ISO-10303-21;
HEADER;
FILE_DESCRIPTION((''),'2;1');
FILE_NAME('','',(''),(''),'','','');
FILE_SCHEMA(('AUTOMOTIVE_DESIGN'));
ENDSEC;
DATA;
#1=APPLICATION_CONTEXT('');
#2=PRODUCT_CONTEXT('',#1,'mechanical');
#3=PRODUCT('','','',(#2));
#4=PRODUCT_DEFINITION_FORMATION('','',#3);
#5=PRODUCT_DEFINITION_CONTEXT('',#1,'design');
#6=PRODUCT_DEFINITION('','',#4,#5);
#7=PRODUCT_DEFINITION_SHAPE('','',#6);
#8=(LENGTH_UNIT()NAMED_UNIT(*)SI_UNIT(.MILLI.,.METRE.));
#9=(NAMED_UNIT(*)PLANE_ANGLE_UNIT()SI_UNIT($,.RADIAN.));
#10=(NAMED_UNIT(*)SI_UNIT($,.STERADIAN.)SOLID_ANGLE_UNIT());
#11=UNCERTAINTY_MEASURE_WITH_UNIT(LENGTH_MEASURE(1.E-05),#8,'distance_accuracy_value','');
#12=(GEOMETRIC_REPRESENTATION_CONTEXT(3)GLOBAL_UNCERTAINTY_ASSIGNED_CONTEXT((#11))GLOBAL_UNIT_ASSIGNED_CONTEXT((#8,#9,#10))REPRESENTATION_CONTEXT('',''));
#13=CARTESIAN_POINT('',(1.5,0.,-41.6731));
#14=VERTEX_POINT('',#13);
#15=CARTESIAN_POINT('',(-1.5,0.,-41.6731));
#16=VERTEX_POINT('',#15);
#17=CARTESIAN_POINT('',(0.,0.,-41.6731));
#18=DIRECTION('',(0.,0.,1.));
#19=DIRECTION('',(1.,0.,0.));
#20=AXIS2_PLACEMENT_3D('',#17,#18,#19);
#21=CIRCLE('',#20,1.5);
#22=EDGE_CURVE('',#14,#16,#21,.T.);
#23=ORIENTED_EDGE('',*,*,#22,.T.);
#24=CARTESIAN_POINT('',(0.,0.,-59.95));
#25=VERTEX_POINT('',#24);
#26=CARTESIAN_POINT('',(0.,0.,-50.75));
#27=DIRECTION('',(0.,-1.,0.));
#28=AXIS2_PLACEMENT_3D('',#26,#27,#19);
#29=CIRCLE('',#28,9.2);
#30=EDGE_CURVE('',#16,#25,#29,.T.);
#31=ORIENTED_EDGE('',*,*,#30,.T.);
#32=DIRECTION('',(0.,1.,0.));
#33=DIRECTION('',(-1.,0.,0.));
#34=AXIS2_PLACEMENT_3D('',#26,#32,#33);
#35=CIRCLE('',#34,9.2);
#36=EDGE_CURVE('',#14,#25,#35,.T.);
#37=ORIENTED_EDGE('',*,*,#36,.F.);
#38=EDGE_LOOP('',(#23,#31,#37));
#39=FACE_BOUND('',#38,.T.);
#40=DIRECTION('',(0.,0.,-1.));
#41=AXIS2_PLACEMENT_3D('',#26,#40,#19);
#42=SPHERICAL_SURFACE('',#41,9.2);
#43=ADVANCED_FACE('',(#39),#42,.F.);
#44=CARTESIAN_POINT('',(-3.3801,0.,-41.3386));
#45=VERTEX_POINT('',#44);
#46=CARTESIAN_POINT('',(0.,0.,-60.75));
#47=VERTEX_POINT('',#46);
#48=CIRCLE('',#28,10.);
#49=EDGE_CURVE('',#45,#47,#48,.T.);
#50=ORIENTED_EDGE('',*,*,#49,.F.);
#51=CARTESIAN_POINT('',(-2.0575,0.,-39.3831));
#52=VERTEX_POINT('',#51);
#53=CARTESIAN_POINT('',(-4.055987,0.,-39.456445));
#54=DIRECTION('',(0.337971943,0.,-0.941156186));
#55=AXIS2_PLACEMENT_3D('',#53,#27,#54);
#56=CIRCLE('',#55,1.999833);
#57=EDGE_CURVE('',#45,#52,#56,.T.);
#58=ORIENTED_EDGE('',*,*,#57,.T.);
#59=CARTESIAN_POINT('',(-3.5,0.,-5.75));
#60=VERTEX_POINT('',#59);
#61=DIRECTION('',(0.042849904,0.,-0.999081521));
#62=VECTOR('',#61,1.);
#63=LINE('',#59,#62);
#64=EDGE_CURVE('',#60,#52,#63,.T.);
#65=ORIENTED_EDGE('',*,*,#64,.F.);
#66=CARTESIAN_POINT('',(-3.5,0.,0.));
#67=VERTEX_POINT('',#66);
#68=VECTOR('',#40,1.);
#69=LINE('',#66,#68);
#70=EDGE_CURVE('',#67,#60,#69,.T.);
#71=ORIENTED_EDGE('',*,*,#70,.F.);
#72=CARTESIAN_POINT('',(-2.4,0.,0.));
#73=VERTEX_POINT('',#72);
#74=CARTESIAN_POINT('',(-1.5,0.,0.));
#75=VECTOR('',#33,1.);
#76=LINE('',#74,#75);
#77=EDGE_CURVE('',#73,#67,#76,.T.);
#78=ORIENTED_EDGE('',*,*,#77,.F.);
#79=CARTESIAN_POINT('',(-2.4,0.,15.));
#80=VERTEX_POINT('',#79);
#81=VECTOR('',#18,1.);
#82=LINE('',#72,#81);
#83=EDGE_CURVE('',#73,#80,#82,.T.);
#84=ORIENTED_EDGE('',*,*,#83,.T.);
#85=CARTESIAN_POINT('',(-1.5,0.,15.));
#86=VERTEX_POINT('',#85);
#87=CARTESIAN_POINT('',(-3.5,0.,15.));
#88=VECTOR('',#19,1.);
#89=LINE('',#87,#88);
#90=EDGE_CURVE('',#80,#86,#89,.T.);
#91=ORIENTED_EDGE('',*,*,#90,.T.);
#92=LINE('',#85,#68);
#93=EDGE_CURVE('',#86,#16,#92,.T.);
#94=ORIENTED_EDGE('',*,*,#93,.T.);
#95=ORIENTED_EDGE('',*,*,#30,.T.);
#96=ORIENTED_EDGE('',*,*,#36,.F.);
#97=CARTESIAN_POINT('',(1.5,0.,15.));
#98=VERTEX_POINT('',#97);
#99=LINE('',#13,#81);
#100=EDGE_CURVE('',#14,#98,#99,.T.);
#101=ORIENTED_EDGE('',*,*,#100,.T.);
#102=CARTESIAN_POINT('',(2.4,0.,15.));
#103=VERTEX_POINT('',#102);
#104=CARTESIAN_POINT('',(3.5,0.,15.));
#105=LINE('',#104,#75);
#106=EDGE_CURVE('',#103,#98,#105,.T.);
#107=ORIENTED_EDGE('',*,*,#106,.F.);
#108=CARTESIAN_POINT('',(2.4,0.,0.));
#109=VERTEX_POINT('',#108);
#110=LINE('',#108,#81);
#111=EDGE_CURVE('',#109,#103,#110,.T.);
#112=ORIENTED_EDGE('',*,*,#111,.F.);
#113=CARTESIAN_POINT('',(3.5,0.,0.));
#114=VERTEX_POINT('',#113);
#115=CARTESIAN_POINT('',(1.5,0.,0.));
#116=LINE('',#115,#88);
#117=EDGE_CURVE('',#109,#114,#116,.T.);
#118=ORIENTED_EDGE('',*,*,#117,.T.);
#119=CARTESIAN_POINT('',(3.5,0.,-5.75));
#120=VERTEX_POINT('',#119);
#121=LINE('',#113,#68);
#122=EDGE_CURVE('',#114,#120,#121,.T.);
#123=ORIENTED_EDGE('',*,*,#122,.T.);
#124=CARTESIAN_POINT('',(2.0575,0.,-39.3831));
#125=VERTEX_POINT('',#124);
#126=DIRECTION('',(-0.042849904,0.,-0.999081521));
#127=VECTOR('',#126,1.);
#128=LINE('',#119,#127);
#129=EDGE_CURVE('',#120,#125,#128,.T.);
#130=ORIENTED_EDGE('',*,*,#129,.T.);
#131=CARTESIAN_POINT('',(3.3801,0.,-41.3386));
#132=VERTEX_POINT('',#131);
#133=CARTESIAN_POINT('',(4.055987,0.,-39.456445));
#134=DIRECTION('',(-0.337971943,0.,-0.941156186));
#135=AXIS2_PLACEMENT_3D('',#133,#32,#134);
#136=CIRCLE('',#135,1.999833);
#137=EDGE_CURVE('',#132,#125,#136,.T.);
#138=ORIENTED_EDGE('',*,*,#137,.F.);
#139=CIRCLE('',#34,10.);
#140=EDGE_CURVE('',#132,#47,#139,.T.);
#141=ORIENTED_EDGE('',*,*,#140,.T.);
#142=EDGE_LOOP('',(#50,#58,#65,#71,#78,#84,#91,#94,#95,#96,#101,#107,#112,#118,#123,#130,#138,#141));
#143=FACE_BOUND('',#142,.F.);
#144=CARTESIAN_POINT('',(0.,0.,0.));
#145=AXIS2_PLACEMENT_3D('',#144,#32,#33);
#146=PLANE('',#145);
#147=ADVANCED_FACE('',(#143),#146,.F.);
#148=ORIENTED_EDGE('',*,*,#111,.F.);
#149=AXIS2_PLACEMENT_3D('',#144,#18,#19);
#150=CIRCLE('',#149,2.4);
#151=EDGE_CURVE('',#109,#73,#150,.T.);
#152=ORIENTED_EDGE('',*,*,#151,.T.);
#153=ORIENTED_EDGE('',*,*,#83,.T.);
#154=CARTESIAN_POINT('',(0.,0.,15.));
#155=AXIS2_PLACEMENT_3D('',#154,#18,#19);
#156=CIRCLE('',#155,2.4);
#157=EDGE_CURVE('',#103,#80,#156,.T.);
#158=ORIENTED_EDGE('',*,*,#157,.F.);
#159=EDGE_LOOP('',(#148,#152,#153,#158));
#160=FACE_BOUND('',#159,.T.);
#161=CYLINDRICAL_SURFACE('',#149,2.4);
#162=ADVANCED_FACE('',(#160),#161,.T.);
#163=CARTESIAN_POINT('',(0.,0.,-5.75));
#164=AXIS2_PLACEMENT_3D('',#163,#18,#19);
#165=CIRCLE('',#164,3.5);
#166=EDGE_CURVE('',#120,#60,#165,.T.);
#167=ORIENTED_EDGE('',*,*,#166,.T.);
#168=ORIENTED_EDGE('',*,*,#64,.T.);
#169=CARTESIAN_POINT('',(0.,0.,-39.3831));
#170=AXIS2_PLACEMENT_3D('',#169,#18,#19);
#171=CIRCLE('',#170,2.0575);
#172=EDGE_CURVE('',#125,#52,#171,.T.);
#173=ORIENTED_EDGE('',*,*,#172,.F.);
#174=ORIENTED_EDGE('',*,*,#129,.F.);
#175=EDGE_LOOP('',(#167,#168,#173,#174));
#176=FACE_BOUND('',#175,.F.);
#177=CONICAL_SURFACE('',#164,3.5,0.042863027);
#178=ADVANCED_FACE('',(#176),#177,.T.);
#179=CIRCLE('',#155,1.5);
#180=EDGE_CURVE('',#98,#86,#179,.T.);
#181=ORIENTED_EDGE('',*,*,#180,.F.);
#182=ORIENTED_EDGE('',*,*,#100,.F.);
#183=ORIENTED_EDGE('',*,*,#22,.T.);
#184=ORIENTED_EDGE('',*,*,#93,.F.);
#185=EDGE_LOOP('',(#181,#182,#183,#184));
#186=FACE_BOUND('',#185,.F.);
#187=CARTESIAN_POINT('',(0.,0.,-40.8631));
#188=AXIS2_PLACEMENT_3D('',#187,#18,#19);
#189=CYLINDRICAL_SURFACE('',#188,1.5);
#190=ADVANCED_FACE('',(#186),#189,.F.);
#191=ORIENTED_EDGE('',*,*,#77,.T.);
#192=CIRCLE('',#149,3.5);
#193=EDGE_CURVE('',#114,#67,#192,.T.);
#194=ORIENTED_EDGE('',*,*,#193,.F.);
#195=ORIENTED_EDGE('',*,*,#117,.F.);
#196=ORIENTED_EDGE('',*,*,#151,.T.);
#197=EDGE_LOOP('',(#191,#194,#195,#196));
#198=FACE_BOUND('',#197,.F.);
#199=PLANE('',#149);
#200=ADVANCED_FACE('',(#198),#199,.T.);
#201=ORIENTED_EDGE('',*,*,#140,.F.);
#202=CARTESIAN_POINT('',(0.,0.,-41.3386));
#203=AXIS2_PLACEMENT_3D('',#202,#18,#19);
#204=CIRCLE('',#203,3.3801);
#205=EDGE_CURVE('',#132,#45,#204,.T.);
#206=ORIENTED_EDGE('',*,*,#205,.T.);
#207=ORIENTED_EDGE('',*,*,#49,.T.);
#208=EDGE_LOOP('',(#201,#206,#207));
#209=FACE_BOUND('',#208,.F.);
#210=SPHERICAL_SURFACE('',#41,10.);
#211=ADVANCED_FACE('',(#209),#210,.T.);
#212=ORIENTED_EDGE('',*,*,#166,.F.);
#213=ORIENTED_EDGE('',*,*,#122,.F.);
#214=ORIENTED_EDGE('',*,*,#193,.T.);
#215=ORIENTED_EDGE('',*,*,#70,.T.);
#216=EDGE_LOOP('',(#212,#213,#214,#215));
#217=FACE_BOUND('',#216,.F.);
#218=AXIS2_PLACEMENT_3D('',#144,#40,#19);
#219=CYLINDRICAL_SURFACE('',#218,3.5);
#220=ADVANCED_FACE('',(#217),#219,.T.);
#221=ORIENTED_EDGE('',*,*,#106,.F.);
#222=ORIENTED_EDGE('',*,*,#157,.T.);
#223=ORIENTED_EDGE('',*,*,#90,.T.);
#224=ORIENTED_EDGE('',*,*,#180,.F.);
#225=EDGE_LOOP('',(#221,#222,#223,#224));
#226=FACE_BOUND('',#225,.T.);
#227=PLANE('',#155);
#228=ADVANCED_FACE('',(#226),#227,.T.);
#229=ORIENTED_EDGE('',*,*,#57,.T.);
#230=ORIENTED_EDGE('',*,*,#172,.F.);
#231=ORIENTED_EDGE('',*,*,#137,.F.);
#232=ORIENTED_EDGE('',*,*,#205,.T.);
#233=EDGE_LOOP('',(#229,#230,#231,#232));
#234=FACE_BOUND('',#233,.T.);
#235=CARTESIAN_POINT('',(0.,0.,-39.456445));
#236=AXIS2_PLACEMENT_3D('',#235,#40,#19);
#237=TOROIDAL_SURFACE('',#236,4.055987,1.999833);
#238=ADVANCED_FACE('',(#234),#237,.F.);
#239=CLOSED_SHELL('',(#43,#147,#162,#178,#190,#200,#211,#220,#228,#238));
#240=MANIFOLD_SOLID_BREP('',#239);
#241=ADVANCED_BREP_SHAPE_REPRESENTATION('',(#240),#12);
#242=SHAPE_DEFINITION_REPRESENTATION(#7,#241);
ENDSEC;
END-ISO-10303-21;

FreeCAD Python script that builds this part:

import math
import FreeCAD as App
import Part
import Sketcher

doc = App.newDocument("Part")
params = doc.addObject("Spreadsheet::Sheet", "Params")
for row, (alias, value) in enumerate([
    ("sketch1_radius", "2 mm"),
    ("sketch1_radius2", "10 mm"),
    ("sketch1_radius3", "9.2 mm"),
    ("sketch1_height", "15 mm"),
    ("sketch1_height2", "5.75 mm"),
    ("revolution_angle", "180 deg"),
], start=1):
    params.set(f"A{row}", alias)
    params.set(f"B{row}", "=" + value)
    params.setAlias(f"B{row}", alias)

body = doc.addObject("PartDesign::Body", "Body")

# Sketch on XZ plane
sketch1 = body.newObject("Sketcher::SketchObject", "Sketch")
sketch1.AttachmentSupport = (doc.getObject("XZ_Plane"), [""])
sketch1.MapMode = "FlatFace"
sketch1.addGeometry(Part.LineSegment(App.Vector(1.5, 15, 0), App.Vector(2.4, 15, 0)), False)
sketch1.addGeometry(Part.LineSegment(App.Vector(2.4, 15, 0), App.Vector(2.4, 0, 0)), False)
sketch1.addGeometry(Part.LineSegment(App.Vector(2.4, 0, 0), App.Vector(3.5, 0, 0)), False)
sketch1.addGeometry(Part.LineSegment(App.Vector(3.5, 0, 0), App.Vector(3.5, -5.8, 0)), False)
sketch1.addGeometry(Part.LineSegment(App.Vector(3.5, -5.8, 0), App.Vector(2.1, -39.4, 0)), False)
sketch1.addGeometry(Part.ArcOfCircle(Part.Circle(App.Vector(4.1, -39.5, 0), App.Vector(0, 0, 1), 2), math.radians(178), math.radians(250)), False)
sketch1.addGeometry(Part.ArcOfCircle(Part.Circle(App.Vector(0, -50.8, 0), App.Vector(0, 0, 1), 10), math.radians(-90), math.radians(70)), False)
sketch1.addGeometry(Part.LineSegment(App.Vector(0, -60.8, 0), App.Vector(0, -60, 0)), False)
sketch1.addGeometry(Part.ArcOfCircle(Part.Circle(App.Vector(0, -50.8, 0), App.Vector(0, 0, 1), 9.2), math.radians(-90), math.radians(81)), False)
sketch1.addGeometry(Part.LineSegment(App.Vector(1.5, -41.7, 0), App.Vector(1.5, 15, 0)), False)
sketch1.addConstraint(Sketcher.Constraint("Coincident", 0, 2, 1, 1))
sketch1.addConstraint(Sketcher.Constraint("Coincident", 1, 2, 2, 1))
sketch1.addConstraint(Sketcher.Constraint("Coincident", 2, 2, 3, 1))
sketch1.addConstraint(Sketcher.Constraint("Coincident", 3, 2, 4, 1))
sketch1.addConstraint(Sketcher.Constraint("Coincident", 4, 2, 5, 1))
sketch1.addConstraint(Sketcher.Constraint("Tangent", 5, 2, 6, 2))
sketch1.addConstraint(Sketcher.Constraint("Coincident", 6, 1, 7, 1))
sketch1.addConstraint(Sketcher.Constraint("Coincident", 7, 2, 8, 1))
sketch1.addConstraint(Sketcher.Constraint("Coincident", 8, 2, 9, 1))
sketch1.addConstraint(Sketcher.Constraint("Coincident", 9, 2, 0, 1))
sketch1.addConstraint(Sketcher.Constraint("Horizontal", 0))
sketch1.addConstraint(Sketcher.Constraint("Vertical", 1))
sketch1.addConstraint(Sketcher.Constraint("Horizontal", 2))
sketch1.addConstraint(Sketcher.Constraint("Vertical", 3))
sketch1.addConstraint(Sketcher.Constraint("Vertical", 7))
sketch1.addConstraint(Sketcher.Constraint("Vertical", 9))
sketch1.addConstraint(Sketcher.Constraint("Coincident", 8, 3, 6, 3))
sketch1.addConstraint(Sketcher.Constraint("PointOnObject", 6, 3, -2))
sketch1.addConstraint(Sketcher.Constraint("PointOnObject", 1, 2, -1))
sketch1.addConstraint(Sketcher.Constraint("PointOnObject", 6, 1, -2))
sketch1.addConstraint(Sketcher.Constraint("Radius", 5, 2.0))
sketch1.addConstraint(Sketcher.Constraint("Radius", 6, 10.0))
sketch1.addConstraint(Sketcher.Constraint("Radius", 8, 9.2))
sketch1.addConstraint(Sketcher.Constraint("DistanceY", 1, 2, 1, 1, 15.0))
sketch1.addConstraint(Sketcher.Constraint("DistanceX", 9, 2, 2, 2, 2.0))
sketch1.addConstraint(Sketcher.Constraint("DistanceY", 3, 2, 3, 1, 5.75))
sketch1.addConstraint(Sketcher.Constraint("DistanceX", -1, 1, 0, 2, 2.4))
sketch1.addConstraint(Sketcher.Constraint("DistanceX", -1, 1, 2, 2, 3.5))
sketch1.addConstraint(Sketcher.Constraint("DistanceY", 6, 3, 3, 2, 45.0))
sketch1.addConstraint(Sketcher.Constraint("DistanceX", -1, 1, 5, 2, 3.38))
sketch1.addConstraint(Sketcher.Constraint("DistanceY", 8, 2, 4, 2, 2.29))
sketch1.setExpression("Constraints[20]", "Params.sketch1_radius")
sketch1.setExpression("Constraints[21]", "Params.sketch1_radius2")
sketch1.setExpression("Constraints[22]", "Params.sketch1_radius3")
sketch1.setExpression("Constraints[23]", "Params.sketch1_height")
sketch1.setExpression("Constraints[25]", "Params.sketch1_height2")
revolution = body.newObject("PartDesign::Revolution", "Revolution")
revolution.Profile = sketch1
revolution.ReferenceAxis = (sketch1, ["V_Axis"])
revolution.setExpression("Angle", "Params.revolution_angle")

doc.recompute()
